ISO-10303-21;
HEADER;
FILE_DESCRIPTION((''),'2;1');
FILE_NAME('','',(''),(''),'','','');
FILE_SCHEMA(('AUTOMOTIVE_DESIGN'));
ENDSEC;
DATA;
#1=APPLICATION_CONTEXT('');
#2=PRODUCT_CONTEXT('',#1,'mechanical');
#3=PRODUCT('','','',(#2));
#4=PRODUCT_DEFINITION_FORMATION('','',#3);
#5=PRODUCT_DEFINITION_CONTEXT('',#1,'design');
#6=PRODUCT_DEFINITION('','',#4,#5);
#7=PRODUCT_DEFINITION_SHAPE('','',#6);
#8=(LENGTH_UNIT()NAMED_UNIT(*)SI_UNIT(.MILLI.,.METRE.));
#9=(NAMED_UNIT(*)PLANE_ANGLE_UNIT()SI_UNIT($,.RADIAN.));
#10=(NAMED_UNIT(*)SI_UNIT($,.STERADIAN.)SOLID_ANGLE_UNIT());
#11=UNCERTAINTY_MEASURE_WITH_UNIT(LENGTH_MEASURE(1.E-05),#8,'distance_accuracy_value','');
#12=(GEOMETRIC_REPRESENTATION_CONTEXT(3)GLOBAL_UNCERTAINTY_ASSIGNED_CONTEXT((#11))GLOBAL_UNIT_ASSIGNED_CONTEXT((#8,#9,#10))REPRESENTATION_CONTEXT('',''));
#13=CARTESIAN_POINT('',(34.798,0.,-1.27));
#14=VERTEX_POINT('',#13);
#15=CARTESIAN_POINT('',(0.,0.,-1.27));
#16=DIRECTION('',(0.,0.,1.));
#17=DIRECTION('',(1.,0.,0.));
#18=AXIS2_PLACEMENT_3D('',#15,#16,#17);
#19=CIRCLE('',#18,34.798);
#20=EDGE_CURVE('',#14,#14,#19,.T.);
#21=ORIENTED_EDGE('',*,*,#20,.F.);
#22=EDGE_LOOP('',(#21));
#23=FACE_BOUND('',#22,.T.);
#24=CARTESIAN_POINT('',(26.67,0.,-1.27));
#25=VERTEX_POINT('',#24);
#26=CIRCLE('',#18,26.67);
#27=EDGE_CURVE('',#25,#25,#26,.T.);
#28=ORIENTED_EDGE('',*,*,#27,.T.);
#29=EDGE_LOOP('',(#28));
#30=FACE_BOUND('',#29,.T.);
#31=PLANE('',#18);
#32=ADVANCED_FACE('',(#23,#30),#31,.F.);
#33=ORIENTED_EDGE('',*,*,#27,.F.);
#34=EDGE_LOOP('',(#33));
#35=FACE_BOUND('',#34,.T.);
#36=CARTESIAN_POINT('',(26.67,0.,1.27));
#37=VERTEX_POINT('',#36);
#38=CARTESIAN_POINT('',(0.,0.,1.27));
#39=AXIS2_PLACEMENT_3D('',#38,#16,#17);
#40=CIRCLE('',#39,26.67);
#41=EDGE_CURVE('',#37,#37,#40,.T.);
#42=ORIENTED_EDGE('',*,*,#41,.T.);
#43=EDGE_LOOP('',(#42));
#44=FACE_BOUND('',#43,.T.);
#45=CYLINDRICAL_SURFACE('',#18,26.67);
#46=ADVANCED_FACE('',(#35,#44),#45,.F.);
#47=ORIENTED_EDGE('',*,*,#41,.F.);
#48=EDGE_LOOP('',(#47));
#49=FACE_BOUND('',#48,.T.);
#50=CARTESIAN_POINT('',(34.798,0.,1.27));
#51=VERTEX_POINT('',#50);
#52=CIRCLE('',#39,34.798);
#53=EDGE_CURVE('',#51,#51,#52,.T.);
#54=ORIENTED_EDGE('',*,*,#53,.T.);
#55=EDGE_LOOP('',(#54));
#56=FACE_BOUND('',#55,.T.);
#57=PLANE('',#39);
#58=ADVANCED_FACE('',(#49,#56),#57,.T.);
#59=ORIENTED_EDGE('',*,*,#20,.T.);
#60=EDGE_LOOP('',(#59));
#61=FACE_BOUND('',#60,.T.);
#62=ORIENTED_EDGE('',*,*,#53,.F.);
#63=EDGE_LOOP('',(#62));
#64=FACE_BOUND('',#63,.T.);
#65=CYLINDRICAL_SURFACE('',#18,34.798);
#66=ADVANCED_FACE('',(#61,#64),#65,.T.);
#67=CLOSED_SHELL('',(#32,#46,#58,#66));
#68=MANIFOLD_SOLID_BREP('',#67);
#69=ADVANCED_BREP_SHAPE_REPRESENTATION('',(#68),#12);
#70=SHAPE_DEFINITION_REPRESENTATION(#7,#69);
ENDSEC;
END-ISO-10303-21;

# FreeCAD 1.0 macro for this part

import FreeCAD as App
import Part
import Sketcher
from FreeCAD import Vector
Q = App.Units.Quantity


def add_polygon(sketch, points):
    """Adds a closed chain of lines whose ends are joined by coincident constraints."""
    first, n = sketch.GeometryCount, len(points)
    for a, b in zip(points, points[1:] + points[:1]):
        sketch.addGeometry(Part.LineSegment(App.Vector(*a, 0), App.Vector(*b, 0)), False)
    for i in range(n):
        sketch.addConstraint(Sketcher.Constraint("Coincident", first + i, 2, first + (i + 1) % n, 1))

doc = App.newDocument("Part")
params = doc.addObject("Spreadsheet::Sheet", "Params")
for row, (alias, value) in enumerate([
    ("sketch1_diameter", "2.1 in"),
    ("sketch1_width", "2.935 in"),
    ("pad1_length", "0.05 in"),
    ("pad1_length2", "0.05 in"),
    ("sketch2_diameter", "0.26 in"),
    ("sketch3_diameter", "0.26 in"),
    ("sketch4_diameter", "2.74 in"),
], start=1):
    params.set(f"A{row}", alias)
    params.set(f"B{row}", "=" + value)
    params.setAlias(f"B{row}", alias)

body = doc.addObject("PartDesign::Body", "Body")

sketch1 = body.newObject("Sketcher::SketchObject", "Sketch")
sketch1.AttachmentSupport = (doc.getObject("XY_Plane"), [""])
sketch1.MapMode = "FlatFace"
add_polygon(sketch1, [(-37.2745, 37.2745), (-37.2745, -37.2745), (37.2745, -37.2745), (37.2745, 37.2745)])
sketch1.addGeometry(Part.Circle(Vector(0, 0, 0), Vector(0, 0, 1), 26.67), False)
sketch1.addConstraint(Sketcher.Constraint("Vertical", 0))
sketch1.addConstraint(Sketcher.Constraint("Horizontal", 1))
sketch1.addConstraint(Sketcher.Constraint("Vertical", 2))
sketch1.addConstraint(Sketcher.Constraint("Horizontal", 3))
sketch1.addConstraint(Sketcher.Constraint("Coincident", 4, 3, -1, 1))
sketch1.addConstraint(Sketcher.Constraint("Symmetric", 0, 2, 2, 2, -1, 1))
sketch1.addConstraint(Sketcher.Constraint("Equal", 3, 0))
sketch1.addConstraint(Sketcher.Constraint("Diameter", 4, Q("2.1 in")))
sketch1.addConstraint(Sketcher.Constraint("DistanceX", 1, 1, 1, 2, Q("2.935 in")))
sketch1.setExpression("Constraints[11]", "Params.sketch1_diameter")
sketch1.setExpression("Constraints[12]", "Params.sketch1_width")
pad1 = body.newObject("PartDesign::Pad", "Pad")
pad1.Profile = sketch1
pad1.Type = "TwoLengths"
pad1.setExpression("Length", "Params.pad1_length")
pad1.setExpression("Length2", "Params.pad1_length2")

sketch2 = body.newObject("Sketcher::SketchObject", "Sketch001")
sketch2.AttachmentSupport = (doc.getObject("XY_Plane"), [""])
sketch2.MapMode = "FlatFace"
sketch2.AttachmentOffset = App.Placement(Vector(0, 0, 0.05 * 25.4), App.Rotation())
sketch2.addGeometry(Part.Circle(Vector(-31.75, 31.75, 0), Vector(0, 0, 1), 3.302), False)
sketch2.addConstraint(Sketcher.Constraint("Diameter", 0, Q("0.26 in")))
sketch2.addConstraint(Sketcher.Constraint("DistanceX", 0, 3, -1, 1, Q("1.25 in")))
sketch2.addConstraint(Sketcher.Constraint("DistanceY", -1, 1, 0, 3, Q("1.25 in")))
sketch2.setExpression("Constraints[0]", "Params.sketch2_diameter")
pocket1 = body.newObject("PartDesign::Pocket", "Pocket")
pocket1.Profile = sketch2
pocket1.Type = "ThroughAll"
doc.recompute()

mirrored = body.newObject("PartDesign::Mirrored", "Mirrored")
mirrored.Originals = [pocket1]
mirrored.MirrorPlane = (doc.getObject("YZ_Plane"), [""])
body.Tip = mirrored
doc.recompute()

mirrored2 = body.newObject("PartDesign::Mirrored", "Mirrored001")
mirrored2.Originals = [pocket1]
mirrored2.MirrorPlane = (doc.getObject("XZ_Plane"), [""])
body.Tip = mirrored2

sketch3 = body.newObject("Sketcher::SketchObject", "Sketch002")
sketch3.AttachmentSupport = (doc.getObject("XY_Plane"), [""])
sketch3.MapMode = "FlatFace"
sketch3.AttachmentOffset = App.Placement(Vector(0, 0, 0.05 * 25.4), App.Rotation())
sketch3.addGeometry(Part.Circle(Vector(31.75, -31.75, 0), Vector(0, 0, 1), 3.302), False)
sketch3.addConstraint(Sketcher.Constraint("Diameter", 0, Q("0.26 in")))
sketch3.addConstraint(Sketcher.Constraint("DistanceX", -1, 1, 0, 3, Q("1.25 in")))
sketch3.addConstraint(Sketcher.Constraint("DistanceY", 0, 3, -1, 1, Q("1.25 in")))
sketch3.setExpression("Constraints[0]", "Params.sketch3_diameter")
pocket2 = body.newObject("PartDesign::Pocket", "Pocket001")
pocket2.Profile = sketch3
pocket2.Type = "ThroughAll"

sketch4 = body.newObject("Sketcher::SketchObject", "Sketch003")
sketch4.AttachmentSupport = (doc.getObject("XY_Plane"), [""])
sketch4.MapMode = "FlatFace"
sketch4.AttachmentOffset = App.Placement(Vector(0, 0, 0.05 * 25.4), App.Rotation())
add_polygon(sketch4, [(-48.821, 48.821), (-48.821, -48.821), (48.821, -48.821), (48.821, 48.821)])
sketch4.addGeometry(Part.Circle(Vector(0, 0, 0), Vector(0, 0, 1), 34.798), False)
sketch4.addConstraint(Sketcher.Constraint("Vertical", 0))
sketch4.addConstraint(Sketcher.Constraint("Horizontal", 1))
sketch4.addConstraint(Sketcher.Constraint("Vertical", 2))
sketch4.addConstraint(Sketcher.Constraint("Horizontal", 3))
sketch4.addConstraint(Sketcher.Constraint("Coincident", 4, 3, -1, 1))
sketch4.addConstraint(Sketcher.Constraint("Symmetric", 0, 2, 2, 2, -1, 1))
sketch4.addConstraint(Sketcher.Constraint("Equal", 3, 0))
sketch4.addConstraint(Sketcher.Constraint("Diameter", 4, Q("2.74 in")))
sketch4.addConstraint(Sketcher.Constraint("DistanceX", 1, 1, 1, 2, 97.642))
sketch4.setExpression("Constraints[11]", "Params.sketch4_diameter")
pocket3 = body.newObject("PartDesign::Pocket", "Pocket002")
pocket3.Profile = sketch4
pocket3.Type = "ThroughAll"

doc.recompute()
